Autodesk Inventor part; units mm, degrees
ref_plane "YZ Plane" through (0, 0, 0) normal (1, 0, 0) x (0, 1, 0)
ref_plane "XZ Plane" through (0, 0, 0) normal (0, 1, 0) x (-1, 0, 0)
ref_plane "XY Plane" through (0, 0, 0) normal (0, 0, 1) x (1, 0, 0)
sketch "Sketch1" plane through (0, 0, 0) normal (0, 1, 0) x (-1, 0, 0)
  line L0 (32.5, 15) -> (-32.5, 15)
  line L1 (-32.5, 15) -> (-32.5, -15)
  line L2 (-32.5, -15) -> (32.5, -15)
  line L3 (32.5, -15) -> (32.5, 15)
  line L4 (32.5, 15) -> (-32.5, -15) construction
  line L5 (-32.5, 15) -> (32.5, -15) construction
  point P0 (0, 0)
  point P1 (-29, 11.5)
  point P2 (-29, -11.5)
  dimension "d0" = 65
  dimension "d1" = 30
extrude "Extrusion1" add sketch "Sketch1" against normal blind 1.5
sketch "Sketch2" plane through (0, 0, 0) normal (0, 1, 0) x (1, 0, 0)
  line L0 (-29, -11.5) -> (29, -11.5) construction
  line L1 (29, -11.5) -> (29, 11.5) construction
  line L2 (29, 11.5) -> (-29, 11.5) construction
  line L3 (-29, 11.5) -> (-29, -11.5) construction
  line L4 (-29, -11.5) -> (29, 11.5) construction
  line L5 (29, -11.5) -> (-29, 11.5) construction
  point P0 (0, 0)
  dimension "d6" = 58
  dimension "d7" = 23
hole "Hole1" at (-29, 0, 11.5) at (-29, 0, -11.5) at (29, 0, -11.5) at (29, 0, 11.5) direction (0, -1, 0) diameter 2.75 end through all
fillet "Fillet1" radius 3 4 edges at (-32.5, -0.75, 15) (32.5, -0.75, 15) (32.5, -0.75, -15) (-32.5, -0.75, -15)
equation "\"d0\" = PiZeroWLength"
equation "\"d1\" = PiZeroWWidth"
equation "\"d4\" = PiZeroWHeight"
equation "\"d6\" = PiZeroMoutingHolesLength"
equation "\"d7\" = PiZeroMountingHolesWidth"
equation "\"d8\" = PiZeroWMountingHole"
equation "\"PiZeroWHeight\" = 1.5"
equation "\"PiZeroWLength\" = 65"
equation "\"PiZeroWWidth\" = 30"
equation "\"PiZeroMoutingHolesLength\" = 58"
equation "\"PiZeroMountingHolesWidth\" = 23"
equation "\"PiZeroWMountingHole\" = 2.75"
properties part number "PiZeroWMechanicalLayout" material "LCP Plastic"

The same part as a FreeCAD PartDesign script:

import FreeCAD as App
import Part
import Sketcher


def edges_at(feature, points):
    """Names of the edges that pass closest to the given points."""
    edges = feature.Shape.Edges
    near = lambda p: min(range(len(edges)), key=lambda i: edges[i].distToShape(Part.Vertex(*p))[0])
    return sorted({f"Edge{near(p) + 1}" for p in points})

doc = App.newDocument("Part")
params = doc.addObject("Spreadsheet::Sheet", "Params")
for row, (alias, value) in enumerate([
    ("sketch1_width", "65 mm"),
    ("sketch1_height", "30 mm"),
    ("pad1_length", "1.5 mm"),
    ("sketch2_diameter", "2.75 mm"),
    ("hole_diameter", "2.75 mm"),
    ("fillet_radius", "3 mm"),
], start=1):
    params.set(f"A{row}", alias)
    params.set(f"B{row}", "=" + value)
    params.setAlias(f"B{row}", alias)

body = doc.addObject("PartDesign::Body", "Body")

sketch1 = doc.addObject("Sketcher::SketchObject", "Sketch")
body.addObject(sketch1)
sketch1.AttachmentSupport = (doc.XZ_Plane, [""])
sketch1.MapMode = "FlatFace"
sketch1.addGeometry([
    Part.LineSegment(App.Vector(-32.5, -15, 0), App.Vector(-32.5, 15, 0)),
    Part.LineSegment(App.Vector(-32.5, 15, 0), App.Vector(32.5, 15, 0)),
    Part.LineSegment(App.Vector(32.5, 15, 0), App.Vector(32.5, -15, 0)),
    Part.LineSegment(App.Vector(32.5, -15, 0), App.Vector(-32.5, -15, 0)),
], False)
sketch1.addConstraint([
    Sketcher.Constraint("Coincident", 0, 2, 1, 1),
    Sketcher.Constraint("Coincident", 1, 2, 2, 1),
    Sketcher.Constraint("Coincident", 2, 2, 3, 1),
    Sketcher.Constraint("Coincident", 3, 2, 0, 1),
    Sketcher.Constraint("Vertical", 0),
    Sketcher.Constraint("Horizontal", 1),
    Sketcher.Constraint("Vertical", 2),
    Sketcher.Constraint("Horizontal", 3),
    Sketcher.Constraint("Symmetric", 0, 2, 2, 2, -1, 1),
    Sketcher.Constraint("DistanceX", 1, 1, 1, 2, 65.0),
    Sketcher.Constraint("DistanceY", 0, 1, 0, 2, 30.0),
])
sketch1.setExpression("Constraints[9]", "Params.sketch1_width")
sketch1.setExpression("Constraints[10]", "Params.sketch1_height")
pad1 = doc.addObject("PartDesign::Pad", "Pad")
body.addObject(pad1)
pad1.Profile = sketch1
pad1.setExpression("Length", "Params.pad1_length")

sketch2 = doc.addObject("Sketcher::SketchObject", "Sketch001")
body.addObject(sketch2)
sketch2.AttachmentSupport = (doc.XZ_Plane, [""])
sketch2.MapMode = "FlatFace"
sketch2.addGeometry([
    Part.Circle(App.Vector(-29, 11.5, 0), App.Vector(0, 0, 1), 1.375),
    Part.Circle(App.Vector(-29, -11.5, 0), App.Vector(0, 0, 1), 1.375),
    Part.Circle(App.Vector(29, -11.5, 0), App.Vector(0, 0, 1), 1.375),
    Part.Circle(App.Vector(29, 11.5, 0), App.Vector(0, 0, 1), 1.375),
], False)
sketch2.addConstraint([
    Sketcher.Constraint("Equal", 0, 1),
    Sketcher.Constraint("Equal", 1, 2),
    Sketcher.Constraint("Equal", 2, 3),
    Sketcher.Constraint("Symmetric", 0, 3, 2, 3, -1, 1),
    Sketcher.Constraint("Symmetric", 1, 3, 3, 3, -1, 1),
    Sketcher.Constraint("Symmetric", 1, 3, 2, 3, -2),
    Sketcher.Constraint("Diameter", 0, 2.75),
    Sketcher.Constraint("DistanceX", 0, 3, -1, 1, 29.0),
    Sketcher.Constraint("DistanceY", 1, 3, 0, 3, 23.0),
])
sketch2.setExpression("Constraints[6]", "Params.sketch2_diameter")
doc.recompute()
hole = doc.addObject("PartDesign::Hole", "Hole")
body.addObject(hole)
hole.Profile = sketch2
hole.ThreadType = "None"
hole.setExpression("Diameter", "Params.hole_diameter")
hole.DepthType = "ThroughAll"
hole.Reversed = True
doc.recompute()

fillet = doc.addObject("PartDesign::Fillet", "Fillet")
body.addObject(fillet)
fillet.Base = (hole, edges_at(hole, [
    (-32.5, -0.75, 15),
    (32.5, -0.75, 15),
    (32.5, -0.75, -15),
    (-32.5, -0.75, -15),
]))
fillet.setExpression("Radius", "Params.fillet_radius")

doc.recompute()
